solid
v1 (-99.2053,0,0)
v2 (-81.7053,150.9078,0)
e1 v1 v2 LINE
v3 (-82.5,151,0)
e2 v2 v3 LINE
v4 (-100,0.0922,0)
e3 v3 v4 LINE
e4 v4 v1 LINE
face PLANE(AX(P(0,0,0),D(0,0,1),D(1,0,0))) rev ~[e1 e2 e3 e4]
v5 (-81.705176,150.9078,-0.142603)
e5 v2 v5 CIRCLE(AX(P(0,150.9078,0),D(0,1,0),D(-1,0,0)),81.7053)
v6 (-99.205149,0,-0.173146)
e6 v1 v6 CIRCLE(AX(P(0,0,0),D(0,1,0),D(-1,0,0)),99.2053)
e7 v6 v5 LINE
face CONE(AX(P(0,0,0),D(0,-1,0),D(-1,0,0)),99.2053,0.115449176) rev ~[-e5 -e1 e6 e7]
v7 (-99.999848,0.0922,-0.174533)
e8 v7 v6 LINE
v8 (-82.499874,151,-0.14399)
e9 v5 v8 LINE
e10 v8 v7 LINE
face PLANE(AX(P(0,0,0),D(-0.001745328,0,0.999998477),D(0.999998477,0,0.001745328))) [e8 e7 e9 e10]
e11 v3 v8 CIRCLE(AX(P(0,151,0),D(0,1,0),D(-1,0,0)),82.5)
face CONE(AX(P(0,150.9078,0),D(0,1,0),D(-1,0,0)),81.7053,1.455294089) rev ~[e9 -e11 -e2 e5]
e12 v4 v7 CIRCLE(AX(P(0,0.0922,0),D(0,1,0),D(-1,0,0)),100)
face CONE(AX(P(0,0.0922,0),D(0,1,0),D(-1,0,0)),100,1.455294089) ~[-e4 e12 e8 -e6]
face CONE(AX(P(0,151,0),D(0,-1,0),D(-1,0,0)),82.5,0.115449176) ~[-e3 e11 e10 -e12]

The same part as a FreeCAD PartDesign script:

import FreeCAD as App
import Part
import Sketcher
Q = App.Units.Quantity


def add_polygon(sketch, points):
    """Adds a closed chain of lines whose ends are joined by coincident constraints."""
    first, n = sketch.GeometryCount, len(points)
    for a, b in zip(points, points[1:] + points[:1]):
        sketch.addGeometry(Part.LineSegment(App.Vector(*a, 0), App.Vector(*b, 0)), False)
    for i in range(n):
        sketch.addConstraint(Sketcher.Constraint("Coincident", first + i, 2, first + (i + 1) % n, 1))

doc = App.newDocument("Part")
body = doc.addObject("PartDesign::Body", "Body")

sketch1 = doc.addObject("Sketcher::SketchObject", "Sketch")
body.addObject(sketch1)
sketch1.AttachmentSupport = (doc.XY_Plane, [""])
sketch1.MapMode = "FlatFace"
add_polygon(sketch1, [(-81.7053, 150.9078), (-82.5, 151), (-100, 0.0922), (-99.2053, 0)])
sketch1.addConstraint(Sketcher.Constraint("PointOnObject", 2, 2, -1))
sketch1.addConstraint(Sketcher.Constraint("Perpendicular", 0, 1))
sketch1.addConstraint(Sketcher.Constraint("Perpendicular", 1, 2))
sketch1.addConstraint(Sketcher.Constraint("Perpendicular", 2, 3))
sketch1.addConstraint(Sketcher.Constraint("DistanceY", -1, 1, 0, 2, Q("151 mm")))
sketch1.addConstraint(Sketcher.Constraint("Distance", 0, Q("0.8 mm")))
sketch1.addConstraint(Sketcher.Constraint("DistanceX", 1, 2, -1, 1, Q("100 mm")))
sketch1.addConstraint(Sketcher.Constraint("DistanceX", 0, 2, -1, 1, Q("82.5 mm")))
revolution = doc.addObject("PartDesign::Revolution", "Revolution")
body.addObject(revolution)
revolution.Profile = sketch1
revolution.ReferenceAxis = (sketch1, ["V_Axis"])
revolution.Angle = 359.9

doc.recompute()
